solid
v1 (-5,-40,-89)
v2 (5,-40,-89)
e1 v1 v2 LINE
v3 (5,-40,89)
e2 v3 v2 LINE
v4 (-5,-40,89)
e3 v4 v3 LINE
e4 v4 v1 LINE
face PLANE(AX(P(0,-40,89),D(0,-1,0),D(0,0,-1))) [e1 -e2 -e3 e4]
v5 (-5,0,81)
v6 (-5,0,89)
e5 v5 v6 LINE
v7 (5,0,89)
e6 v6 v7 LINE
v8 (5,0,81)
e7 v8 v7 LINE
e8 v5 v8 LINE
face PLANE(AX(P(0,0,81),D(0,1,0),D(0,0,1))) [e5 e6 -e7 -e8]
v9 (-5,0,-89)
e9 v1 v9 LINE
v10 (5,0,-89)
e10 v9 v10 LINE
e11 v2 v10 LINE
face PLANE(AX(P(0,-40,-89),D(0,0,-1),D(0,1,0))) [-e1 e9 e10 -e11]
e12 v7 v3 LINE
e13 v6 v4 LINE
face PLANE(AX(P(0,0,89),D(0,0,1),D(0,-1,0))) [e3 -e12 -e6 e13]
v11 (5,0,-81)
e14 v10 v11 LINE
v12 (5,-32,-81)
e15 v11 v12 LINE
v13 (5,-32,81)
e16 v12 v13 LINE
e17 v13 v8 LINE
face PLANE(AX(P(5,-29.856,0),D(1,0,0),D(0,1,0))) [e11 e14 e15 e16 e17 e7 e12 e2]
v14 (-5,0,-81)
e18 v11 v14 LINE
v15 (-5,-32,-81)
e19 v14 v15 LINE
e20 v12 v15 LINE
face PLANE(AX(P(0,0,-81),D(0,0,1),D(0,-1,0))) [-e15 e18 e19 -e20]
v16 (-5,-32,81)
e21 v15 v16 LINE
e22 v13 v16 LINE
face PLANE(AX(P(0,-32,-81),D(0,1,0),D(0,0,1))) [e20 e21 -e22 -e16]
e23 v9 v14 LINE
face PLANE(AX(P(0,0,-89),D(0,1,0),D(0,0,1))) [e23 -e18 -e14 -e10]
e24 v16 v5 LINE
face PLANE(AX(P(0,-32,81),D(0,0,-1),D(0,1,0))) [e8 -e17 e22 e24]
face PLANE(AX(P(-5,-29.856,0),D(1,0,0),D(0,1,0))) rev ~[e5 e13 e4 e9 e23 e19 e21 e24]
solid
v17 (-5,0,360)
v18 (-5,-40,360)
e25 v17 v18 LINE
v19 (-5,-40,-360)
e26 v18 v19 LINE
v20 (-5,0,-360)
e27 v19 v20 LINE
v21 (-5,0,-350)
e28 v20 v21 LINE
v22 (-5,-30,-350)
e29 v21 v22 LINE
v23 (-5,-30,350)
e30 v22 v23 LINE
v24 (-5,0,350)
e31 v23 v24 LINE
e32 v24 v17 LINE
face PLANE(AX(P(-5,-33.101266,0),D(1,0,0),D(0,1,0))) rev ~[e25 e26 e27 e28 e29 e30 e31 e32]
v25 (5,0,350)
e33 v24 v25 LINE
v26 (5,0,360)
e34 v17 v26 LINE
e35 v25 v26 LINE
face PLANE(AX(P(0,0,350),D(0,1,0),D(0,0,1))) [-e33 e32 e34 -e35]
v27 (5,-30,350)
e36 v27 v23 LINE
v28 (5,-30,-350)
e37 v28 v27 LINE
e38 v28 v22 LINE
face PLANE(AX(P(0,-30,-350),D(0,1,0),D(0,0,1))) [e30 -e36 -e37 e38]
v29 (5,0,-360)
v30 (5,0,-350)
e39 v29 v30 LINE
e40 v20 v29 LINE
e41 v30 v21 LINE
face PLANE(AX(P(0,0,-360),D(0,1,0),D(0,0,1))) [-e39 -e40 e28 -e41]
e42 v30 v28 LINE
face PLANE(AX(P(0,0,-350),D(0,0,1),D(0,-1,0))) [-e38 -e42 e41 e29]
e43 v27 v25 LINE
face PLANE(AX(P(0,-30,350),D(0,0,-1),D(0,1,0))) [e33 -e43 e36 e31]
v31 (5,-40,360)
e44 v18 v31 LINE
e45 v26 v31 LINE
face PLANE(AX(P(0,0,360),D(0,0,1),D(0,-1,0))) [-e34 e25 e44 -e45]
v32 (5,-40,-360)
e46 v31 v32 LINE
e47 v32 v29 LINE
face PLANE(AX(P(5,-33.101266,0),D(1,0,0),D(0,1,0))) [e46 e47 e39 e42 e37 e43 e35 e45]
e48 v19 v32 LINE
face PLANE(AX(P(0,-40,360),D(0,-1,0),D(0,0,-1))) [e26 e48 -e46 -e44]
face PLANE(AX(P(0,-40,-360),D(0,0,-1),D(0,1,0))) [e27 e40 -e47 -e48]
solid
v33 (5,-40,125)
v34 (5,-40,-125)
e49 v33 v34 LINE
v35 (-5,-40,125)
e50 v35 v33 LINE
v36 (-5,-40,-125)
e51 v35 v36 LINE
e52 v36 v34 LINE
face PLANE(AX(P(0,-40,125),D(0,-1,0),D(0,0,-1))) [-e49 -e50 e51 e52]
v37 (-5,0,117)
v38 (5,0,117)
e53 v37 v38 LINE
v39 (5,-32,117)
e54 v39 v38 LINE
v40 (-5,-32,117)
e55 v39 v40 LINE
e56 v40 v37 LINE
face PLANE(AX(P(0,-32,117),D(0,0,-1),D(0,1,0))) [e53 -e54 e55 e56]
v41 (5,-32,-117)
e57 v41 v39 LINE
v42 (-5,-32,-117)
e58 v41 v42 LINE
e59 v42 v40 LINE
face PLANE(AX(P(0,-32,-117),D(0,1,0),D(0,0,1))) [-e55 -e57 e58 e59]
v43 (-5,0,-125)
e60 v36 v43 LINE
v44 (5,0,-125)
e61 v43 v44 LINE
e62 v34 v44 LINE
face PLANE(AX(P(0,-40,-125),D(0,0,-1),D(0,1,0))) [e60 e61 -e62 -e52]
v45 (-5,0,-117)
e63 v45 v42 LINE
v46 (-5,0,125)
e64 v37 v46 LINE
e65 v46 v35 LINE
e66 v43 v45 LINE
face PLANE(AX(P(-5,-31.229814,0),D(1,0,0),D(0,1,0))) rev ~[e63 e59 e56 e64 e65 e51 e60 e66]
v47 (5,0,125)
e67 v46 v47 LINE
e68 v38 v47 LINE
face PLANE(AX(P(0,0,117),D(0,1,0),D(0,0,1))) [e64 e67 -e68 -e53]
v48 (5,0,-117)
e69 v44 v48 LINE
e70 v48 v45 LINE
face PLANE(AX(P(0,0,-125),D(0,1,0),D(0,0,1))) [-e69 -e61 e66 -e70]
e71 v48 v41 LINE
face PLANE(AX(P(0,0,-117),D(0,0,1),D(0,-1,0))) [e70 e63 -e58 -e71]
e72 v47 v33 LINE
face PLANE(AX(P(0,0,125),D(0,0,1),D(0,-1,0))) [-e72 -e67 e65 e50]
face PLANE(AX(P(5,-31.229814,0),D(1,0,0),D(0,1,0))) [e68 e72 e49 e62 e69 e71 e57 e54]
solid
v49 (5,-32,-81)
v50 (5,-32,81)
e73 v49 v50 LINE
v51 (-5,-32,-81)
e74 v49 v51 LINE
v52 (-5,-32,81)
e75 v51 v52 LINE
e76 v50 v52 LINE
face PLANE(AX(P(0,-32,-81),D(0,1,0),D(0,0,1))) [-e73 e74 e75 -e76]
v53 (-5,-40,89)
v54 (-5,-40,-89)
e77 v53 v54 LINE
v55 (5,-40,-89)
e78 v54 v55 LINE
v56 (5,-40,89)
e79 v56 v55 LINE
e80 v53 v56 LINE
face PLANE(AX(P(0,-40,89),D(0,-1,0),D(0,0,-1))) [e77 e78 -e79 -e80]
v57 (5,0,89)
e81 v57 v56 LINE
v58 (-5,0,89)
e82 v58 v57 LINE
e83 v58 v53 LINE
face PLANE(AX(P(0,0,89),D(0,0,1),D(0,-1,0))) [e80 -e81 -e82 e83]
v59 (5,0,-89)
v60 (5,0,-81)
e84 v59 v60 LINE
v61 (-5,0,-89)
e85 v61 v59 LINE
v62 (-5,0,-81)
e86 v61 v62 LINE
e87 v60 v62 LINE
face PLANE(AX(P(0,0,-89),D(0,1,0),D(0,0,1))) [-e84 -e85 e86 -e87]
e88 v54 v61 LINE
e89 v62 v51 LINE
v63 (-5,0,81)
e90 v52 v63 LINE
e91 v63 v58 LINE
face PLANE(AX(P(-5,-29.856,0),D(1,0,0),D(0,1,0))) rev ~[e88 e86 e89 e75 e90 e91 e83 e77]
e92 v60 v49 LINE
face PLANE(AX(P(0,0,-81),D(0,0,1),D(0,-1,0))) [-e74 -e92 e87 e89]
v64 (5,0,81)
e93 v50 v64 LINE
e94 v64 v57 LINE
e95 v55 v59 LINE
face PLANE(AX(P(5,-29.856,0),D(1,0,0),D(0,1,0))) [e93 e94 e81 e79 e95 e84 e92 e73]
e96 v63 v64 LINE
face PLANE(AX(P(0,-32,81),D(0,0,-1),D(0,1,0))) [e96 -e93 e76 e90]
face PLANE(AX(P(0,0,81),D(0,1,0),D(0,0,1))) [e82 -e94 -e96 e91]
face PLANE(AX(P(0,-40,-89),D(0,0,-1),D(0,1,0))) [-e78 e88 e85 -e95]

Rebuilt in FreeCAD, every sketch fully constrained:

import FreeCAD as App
import Part
import Sketcher
from FreeCAD import Vector

doc = App.newDocument("Part")
body = doc.addObject("PartDesign::Body", "Body")

# Sketch on YZ plane
sketch1 = body.newObject("Sketcher::SketchObject", "Sketch")
sketch1.AttachmentSupport = (doc.getObject("YZ_Plane"), [""])
sketch1.MapMode = "FlatFace"
sketch1.addGeometry([
    Part.LineSegment(Vector(-32, 117, 0), Vector(0, 117, 0)),  # 0
    Part.LineSegment(Vector(0, 117, 0), Vector(0, 125, 0)),  # 1
    Part.LineSegment(Vector(0, 125, 0), Vector(-40, 125, 0)),  # 2
    Part.LineSegment(Vector(-40, 125, 0), Vector(-40, -125, 0)),  # 3
    Part.LineSegment(Vector(-40, -125, 0), Vector(0, -125, 0)),  # 4
    Part.LineSegment(Vector(0, -125, 0), Vector(0, -117, 0)),  # 5
    Part.LineSegment(Vector(0, -117, 0), Vector(-32, -117, 0)),  # 6
    Part.LineSegment(Vector(-32, -117, 0), Vector(-32, 117, 0)),  # 7
], False)
sketch1.addConstraint([
    Sketcher.Constraint("Coincident", 0, 2, 1, 1),
    Sketcher.Constraint("Coincident", 1, 2, 2, 1),
    Sketcher.Constraint("Coincident", 2, 2, 3, 1),
    Sketcher.Constraint("Coincident", 3, 2, 4, 1),
    Sketcher.Constraint("Coincident", 4, 2, 5, 1),
    Sketcher.Constraint("Coincident", 5, 2, 6, 1),
    Sketcher.Constraint("Coincident", 6, 2, 7, 1),
    Sketcher.Constraint("Coincident", 7, 2, 0, 1),
    Sketcher.Constraint("Horizontal", 0),
    Sketcher.Constraint("Vertical", 1),
    Sketcher.Constraint("Horizontal", 2),
    Sketcher.Constraint("Vertical", 3),
    Sketcher.Constraint("Horizontal", 4),
    Sketcher.Constraint("Vertical", 5),
    Sketcher.Constraint("Horizontal", 6),
    Sketcher.Constraint("Vertical", 7),
    Sketcher.Constraint("Symmetric", 1, 2, 4, 2, -1, 1),
    Sketcher.Constraint("Symmetric", 0, 2, 5, 2, -1),
    Sketcher.Constraint("DistanceX", 0, 1, 0, 2, 32.0),
    Sketcher.Constraint("DistanceX", 2, 2, 2, 1, 40.0),
    Sketcher.Constraint("DistanceY", 1, 1, 1, 2, 8.0),
    Sketcher.Constraint("DistanceY", 3, 2, 3, 1, 250.0),
])
pad1 = body.newObject("PartDesign::Pad", "Pad")
pad1.Profile = sketch1
pad1.Length = 10
pad1.Midplane = True
body2 = doc.addObject("PartDesign::Body", "Body001")

# Sketch on YZ plane
sketch2 = body2.newObject("Sketcher::SketchObject", "Sketch001")
sketch2.AttachmentSupport = (doc.getObject("YZ_Plane001"), [""])
sketch2.MapMode = "FlatFace"
sketch2.addGeometry([
    Part.LineSegment(Vector(-30, 350, 0), Vector(0, 350, 0)),  # 0
    Part.LineSegment(Vector(0, 350, 0), Vector(0, 360, 0)),  # 1
    Part.LineSegment(Vector(0, 360, 0), Vector(-40, 360, 0)),  # 2
    Part.LineSegment(Vector(-40, 360, 0), Vector(-40, -360, 0)),  # 3
    Part.LineSegment(Vector(-40, -360, 0), Vector(0, -360, 0)),  # 4
    Part.LineSegment(Vector(0, -360, 0), Vector(0, -350, 0)),  # 5
    Part.LineSegment(Vector(0, -350, 0), Vector(-30, -350, 0)),  # 6
    Part.LineSegment(Vector(-30, -350, 0), Vector(-30, 350, 0)),  # 7
], False)
sketch2.addConstraint([
    Sketcher.Constraint("Coincident", 0, 2, 1, 1),
    Sketcher.Constraint("Coincident", 1, 2, 2, 1),
    Sketcher.Constraint("Coincident", 2, 2, 3, 1),
    Sketcher.Constraint("Coincident", 3, 2, 4, 1),
    Sketcher.Constraint("Coincident", 4, 2, 5, 1),
    Sketcher.Constraint("Coincident", 5, 2, 6, 1),
    Sketcher.Constraint("Coincident", 6, 2, 7, 1),
    Sketcher.Constraint("Coincident", 7, 2, 0, 1),
    Sketcher.Constraint("Horizontal", 0),
    Sketcher.Constraint("Vertical", 1),
    Sketcher.Constraint("Horizontal", 2),
    Sketcher.Constraint("Vertical", 3),
    Sketcher.Constraint("Horizontal", 4),
    Sketcher.Constraint("Vertical", 5),
    Sketcher.Constraint("Horizontal", 6),
    Sketcher.Constraint("Vertical", 7),
    Sketcher.Constraint("Symmetric", 1, 2, 4, 2, -1, 1),
    Sketcher.Constraint("Symmetric", 0, 2, 5, 2, -1),
    Sketcher.Constraint("DistanceX", 0, 1, 0, 2, 30.0),
    Sketcher.Constraint("DistanceX", 2, 2, 2, 1, 40.0),
    Sketcher.Constraint("DistanceY", 1, 1, 1, 2, 10.0),
    Sketcher.Constraint("DistanceY", 3, 2, 3, 1, 720.0),
])
pad2 = body2.newObject("PartDesign::Pad", "Pad001")
pad2.Profile = sketch2
pad2.Length = 10
pad2.Midplane = True
body3 = doc.addObject("PartDesign::Body", "Body002")

# Sketch on YZ plane
sketch3 = body3.newObject("Sketcher::SketchObject", "Sketch002")
sketch3.AttachmentSupport = (doc.getObject("YZ_Plane002"), [""])
sketch3.MapMode = "FlatFace"
sketch3.addGeometry([
    Part.LineSegment(Vector(-32, 81, 0), Vector(0, 81, 0)),  # 0
    Part.LineSegment(Vector(0, 81, 0), Vector(0, 89, 0)),  # 1
    Part.LineSegment(Vector(0, 89, 0), Vector(-40, 89, 0)),  # 2
    Part.LineSegment(Vector(-40, 89, 0), Vector(-40, -89, 0)),  # 3
    Part.LineSegment(Vector(-40, -89, 0), Vector(0, -89, 0)),  # 4
    Part.LineSegment(Vector(0, -89, 0), Vector(0, -81, 0)),  # 5
    Part.LineSegment(Vector(0, -81, 0), Vector(-32, -81, 0)),  # 6
    Part.LineSegment(Vector(-32, -81, 0), Vector(-32, 81, 0)),  # 7
], False)
sketch3.addConstraint([
    Sketcher.Constraint("Coincident", 0, 2, 1, 1),
    Sketcher.Constraint("Coincident", 1, 2, 2, 1),
    Sketcher.Constraint("Coincident", 2, 2, 3, 1),
    Sketcher.Constraint("Coincident", 3, 2, 4, 1),
    Sketcher.Constraint("Coincident", 4, 2, 5, 1),
    Sketcher.Constraint("Coincident", 5, 2, 6, 1),
    Sketcher.Constraint("Coincident", 6, 2, 7, 1),
    Sketcher.Constraint("Coincident", 7, 2, 0, 1),
    Sketcher.Constraint("Horizontal", 0),
    Sketcher.Constraint("Vertical", 1),
    Sketcher.Constraint("Horizontal", 2),
    Sketcher.Constraint("Vertical", 3),
    Sketcher.Constraint("Horizontal", 4),
    Sketcher.Constraint("Vertical", 5),
    Sketcher.Constraint("Horizontal", 6),
    Sketcher.Constraint("Vertical", 7),
    Sketcher.Constraint("Symmetric", 1, 2, 4, 2, -1, 1),
    Sketcher.Constraint("Symmetric", 0, 2, 5, 2, -1),
    Sketcher.Constraint("DistanceX", 0, 1, 0, 2, 32.0),
    Sketcher.Constraint("DistanceX", 2, 2, 2, 1, 40.0),
    Sketcher.Constraint("DistanceY", 1, 1, 1, 2, 8.0),
    Sketcher.Constraint("DistanceY", 3, 2, 3, 1, 178.0),
])
pad3 = body3.newObject("PartDesign::Pad", "Pad002")
pad3.Profile = sketch3
pad3.Length = 10
pad3.Midplane = True
body4 = doc.addObject("PartDesign::Body", "Body003")

# Sketch on YZ plane
sketch4 = body4.newObject("Sketcher::SketchObject", "Sketch003")
sketch4.AttachmentSupport = (doc.getObject("YZ_Plane003"), [""])
sketch4.MapMode = "FlatFace"
sketch4.addGeometry([
    Part.LineSegment(Vector(-32, 81, 0), Vector(0, 81, 0)),  # 0
    Part.LineSegment(Vector(0, 81, 0), Vector(0, 89, 0)),  # 1
    Part.LineSegment(Vector(0, 89, 0), Vector(-40, 89, 0)),  # 2
    Part.LineSegment(Vector(-40, 89, 0), Vector(-40, -89, 0)),  # 3
    Part.LineSegment(Vector(-40, -89, 0), Vector(0, -89, 0)),  # 4
    Part.LineSegment(Vector(0, -89, 0), Vector(0, -81, 0)),  # 5
    Part.LineSegment(Vector(0, -81, 0), Vector(-32, -81, 0)),  # 6
    Part.LineSegment(Vector(-32, -81, 0), Vector(-32, 81, 0)),  # 7
], False)
sketch4.addConstraint([
    Sketcher.Constraint("Coincident", 0, 2, 1, 1),
    Sketcher.Constraint("Coincident", 1, 2, 2, 1),
    Sketcher.Constraint("Coincident", 2, 2, 3, 1),
    Sketcher.Constraint("Coincident", 3, 2, 4, 1),
    Sketcher.Constraint("Coincident", 4, 2, 5, 1),
    Sketcher.Constraint("Coincident", 5, 2, 6, 1),
    Sketcher.Constraint("Coincident", 6, 2, 7, 1),
    Sketcher.Constraint("Coincident", 7, 2, 0, 1),
    Sketcher.Constraint("Horizontal", 0),
    Sketcher.Constraint("Vertical", 1),
    Sketcher.Constraint("Horizontal", 2),
    Sketcher.Constraint("Vertical", 3),
    Sketcher.Constraint("Horizontal", 4),
    Sketcher.Constraint("Vertical", 5),
    Sketcher.Constraint("Horizontal", 6),
    Sketcher.Constraint("Vertical", 7),
    Sketcher.Constraint("Symmetric", 1, 2, 4, 2, -1, 1),
    Sketcher.Constraint("Symmetric", 0, 2, 5, 2, -1),
    Sketcher.Constraint("DistanceX", 0, 1, 0, 2, 32.0),
    Sketcher.Constraint("DistanceX", 2, 2, 2, 1, 40.0),
    Sketcher.Constraint("DistanceY", 1, 1, 1, 2, 8.0),
    Sketcher.Constraint("DistanceY", 3, 2, 3, 1, 178.0),
])
pad4 = body4.newObject("PartDesign::Pad", "Pad003")
pad4.Profile = sketch4
pad4.Length = 10
pad4.Midplane = True

doc.recompute()
